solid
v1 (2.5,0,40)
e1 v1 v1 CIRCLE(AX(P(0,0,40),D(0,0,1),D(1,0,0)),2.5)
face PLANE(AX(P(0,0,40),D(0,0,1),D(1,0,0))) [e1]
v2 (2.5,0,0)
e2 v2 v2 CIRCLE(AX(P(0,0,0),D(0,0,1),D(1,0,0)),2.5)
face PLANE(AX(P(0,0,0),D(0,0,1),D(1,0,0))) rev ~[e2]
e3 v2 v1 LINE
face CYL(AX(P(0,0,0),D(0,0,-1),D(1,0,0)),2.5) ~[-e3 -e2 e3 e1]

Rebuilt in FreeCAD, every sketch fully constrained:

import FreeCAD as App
import Part
import Sketcher
Q = App.Units.Quantity

doc = App.newDocument("Part")
body = doc.addObject("PartDesign::Body", "Body")

# Sketch on XY plane
sketch1 = doc.addObject("Sketcher::SketchObject", "Sketch")
body.addObject(sketch1)
sketch1.AttachmentSupport = (doc.XY_Plane, [""])
sketch1.MapMode = "FlatFace"
sketch1.addGeometry(Part.Circle(App.Vector(0, 0, 0), App.Vector(0, 0, 1), 2.5), False)
sketch1.addConstraint([
    Sketcher.Constraint("Coincident", 0, 3, -1, 1),
    Sketcher.Constraint("Diameter", 0, Q("5 mm")),
])
pad1 = doc.addObject("PartDesign::Pad", "Pad")
body.addObject(pad1)
pad1.Profile = sketch1
pad1.Length = 40

doc.recompute()
